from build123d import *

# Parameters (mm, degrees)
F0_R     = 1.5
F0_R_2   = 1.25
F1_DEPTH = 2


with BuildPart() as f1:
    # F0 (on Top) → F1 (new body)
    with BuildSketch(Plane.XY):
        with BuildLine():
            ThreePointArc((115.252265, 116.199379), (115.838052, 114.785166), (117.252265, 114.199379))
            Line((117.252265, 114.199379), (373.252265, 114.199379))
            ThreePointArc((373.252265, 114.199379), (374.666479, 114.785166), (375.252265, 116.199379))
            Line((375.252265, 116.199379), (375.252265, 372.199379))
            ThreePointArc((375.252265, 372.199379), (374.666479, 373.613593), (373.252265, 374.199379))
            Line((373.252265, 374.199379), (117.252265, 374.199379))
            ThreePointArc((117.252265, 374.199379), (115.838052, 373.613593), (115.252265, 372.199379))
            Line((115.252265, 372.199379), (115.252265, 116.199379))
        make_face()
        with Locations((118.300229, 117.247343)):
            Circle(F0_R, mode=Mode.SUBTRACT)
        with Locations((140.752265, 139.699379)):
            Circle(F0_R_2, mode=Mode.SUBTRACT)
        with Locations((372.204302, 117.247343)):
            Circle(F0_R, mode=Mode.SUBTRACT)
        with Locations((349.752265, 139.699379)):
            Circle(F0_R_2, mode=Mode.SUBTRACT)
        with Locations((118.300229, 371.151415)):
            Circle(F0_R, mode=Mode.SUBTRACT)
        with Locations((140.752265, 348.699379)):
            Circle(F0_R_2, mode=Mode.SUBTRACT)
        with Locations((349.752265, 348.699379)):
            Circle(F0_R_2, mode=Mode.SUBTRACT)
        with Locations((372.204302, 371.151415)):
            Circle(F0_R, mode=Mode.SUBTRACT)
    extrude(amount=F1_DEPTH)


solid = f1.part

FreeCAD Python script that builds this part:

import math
import FreeCAD as App
import Part
import Sketcher
Q = App.Units.Quantity

doc = App.newDocument("Part")
body = doc.addObject("PartDesign::Body", "Body")

sketch1 = doc.addObject("Sketcher::SketchObject", "Sketch")
body.addObject(sketch1)
sketch1.AttachmentSupport = (doc.XY_Plane, [""])
sketch1.MapMode = "FlatFace"
sketch1.addGeometry([
    Part.ArcOfCircle(Part.Circle(App.Vector(117.252267, 116.199381, 0), App.Vector(0, 0, 1), 2.000002), math.radians(-179.999945), math.radians(-90.000055)),
    Part.LineSegment(App.Vector(117.252265, 114.199379, 0), App.Vector(373.252265, 114.199379, 0)),
    Part.ArcOfCircle(Part.Circle(App.Vector(373.252265, 116.199379, 0), App.Vector(0, 0, 1), 2), math.radians(-89.999994), math.radians(-0.000006)),
    Part.LineSegment(App.Vector(375.252265, 116.199379, 0), App.Vector(375.252265, 372.199379, 0)),
    Part.ArcOfCircle(Part.Circle(App.Vector(373.252266, 372.19938, 0), App.Vector(0, 0, 1), 1.999999), math.radians(-0.000043), math.radians(90.000043)),
    Part.LineSegment(App.Vector(373.252265, 374.199379, 0), App.Vector(117.252265, 374.199379, 0)),
    Part.ArcOfCircle(Part.Circle(App.Vector(117.252265, 372.199379, 0), App.Vector(0, 0, 1), 2), math.radians(90.000006), math.radians(179.999994)),
    Part.LineSegment(App.Vector(115.252265, 372.199379, 0), App.Vector(115.252265, 116.199379, 0)),
    Part.Circle(App.Vector(118.300229, 117.247343, 0), App.Vector(0, 0, 1), 1.5),
    Part.Circle(App.Vector(140.752265, 139.699379, 0), App.Vector(0, 0, 1), 1.25),
    Part.Circle(App.Vector(372.204302, 117.247343, 0), App.Vector(0, 0, 1), 1.5),
    Part.Circle(App.Vector(349.752265, 139.699379, 0), App.Vector(0, 0, 1), 1.25),
    Part.Circle(App.Vector(140.752265, 348.699379, 0), App.Vector(0, 0, 1), 1.25),
    Part.Circle(App.Vector(118.300229, 371.151415, 0), App.Vector(0, 0, 1), 1.5),
    Part.Circle(App.Vector(349.752265, 348.699379, 0), App.Vector(0, 0, 1), 1.25),
    Part.Circle(App.Vector(372.204302, 371.151415, 0), App.Vector(0, 0, 1), 1.5),
], False)
sketch1.addConstraint([
    Sketcher.Constraint("Tangent", 0, 2, 1, 1),
    Sketcher.Constraint("Tangent", 1, 2, 2, 1),
    Sketcher.Constraint("Tangent", 2, 2, 3, 1),
    Sketcher.Constraint("Tangent", 3, 2, 4, 1),
    Sketcher.Constraint("Tangent", 4, 2, 5, 1),
    Sketcher.Constraint("Tangent", 5, 2, 6, 1),
    Sketcher.Constraint("Tangent", 6, 2, 7, 1),
    Sketcher.Constraint("Tangent", 7, 2, 0, 1),
    Sketcher.Constraint("Horizontal", 1),
    Sketcher.Constraint("Vertical", 3),
    Sketcher.Constraint("Horizontal", 5),
    Sketcher.Constraint("Vertical", 7),
    Sketcher.Constraint("Equal", 0, 2),
    Sketcher.Constraint("Equal", 2, 4),
    Sketcher.Constraint("Equal", 4, 6),
    Sketcher.Constraint("Equal", 8, 10),
    Sketcher.Constraint("Equal", 9, 11),
    Sketcher.Constraint("Equal", 11, 12),
    Sketcher.Constraint("Equal", 10, 13),
    Sketcher.Constraint("Equal", 12, 14),
    Sketcher.Constraint("Equal", 13, 15),
    Sketcher.Constraint("Horizontal", 8, 3, 10, 3),
    Sketcher.Constraint("Horizontal", 9, 3, 11, 3),
    Sketcher.Constraint("Horizontal", 12, 3, 14, 3),
    Sketcher.Constraint("Horizontal", 13, 3, 15, 3),
    Sketcher.Constraint("Vertical", 9, 3, 12, 3),
    Sketcher.Constraint("Vertical", 8, 3, 13, 3),
    Sketcher.Constraint("Vertical", 11, 3, 14, 3),
    Sketcher.Constraint("Vertical", 10, 3, 15, 3),
    Sketcher.Constraint("Equal", 5, 3),
    Sketcher.Constraint("Diameter", 8, Q("3 mm")),
    Sketcher.Constraint("Radius", 0, Q("2.000002 mm")),
    Sketcher.Constraint("Diameter", 9, Q("2.5 mm")),
    Sketcher.Constraint("DistanceX", 1, 1, 1, 2, Q("256 mm")),
    Sketcher.Constraint("DistanceX", 9, 3, 11, 3, Q("209 mm")),
    Sketcher.Constraint("DistanceY", 9, 3, 12, 3, Q("209 mm")),
    Sketcher.Constraint("DistanceX", 0, 3, 9, 3, Q("23.499998 mm")),
    Sketcher.Constraint("DistanceY", 0, 3, 9, 3, Q("23.499998 mm")),
    Sketcher.Constraint("DistanceX", -1, 1, 10, 3, Q("372.204302 mm")),
    Sketcher.Constraint("DistanceY", -1, 1, 0, 3, Q("116.199381 mm")),
    Sketcher.Constraint("DistanceX", -1, 1, 8, 3, Q("118.300229 mm")),
    Sketcher.Constraint("DistanceY", 8, 3, 13, 3, Q("253.904072 mm")),
    Sketcher.Constraint("DistanceX", -1, 1, 0, 3, Q("117.252267 mm")),
    Sketcher.Constraint("DistanceY", -1, 1, 8, 3, Q("117.247343 mm")),
])
pad1 = doc.addObject("PartDesign::Pad", "Pad")
body.addObject(pad1)
pad1.Profile = sketch1
pad1.Length = 2

doc.recompute()
